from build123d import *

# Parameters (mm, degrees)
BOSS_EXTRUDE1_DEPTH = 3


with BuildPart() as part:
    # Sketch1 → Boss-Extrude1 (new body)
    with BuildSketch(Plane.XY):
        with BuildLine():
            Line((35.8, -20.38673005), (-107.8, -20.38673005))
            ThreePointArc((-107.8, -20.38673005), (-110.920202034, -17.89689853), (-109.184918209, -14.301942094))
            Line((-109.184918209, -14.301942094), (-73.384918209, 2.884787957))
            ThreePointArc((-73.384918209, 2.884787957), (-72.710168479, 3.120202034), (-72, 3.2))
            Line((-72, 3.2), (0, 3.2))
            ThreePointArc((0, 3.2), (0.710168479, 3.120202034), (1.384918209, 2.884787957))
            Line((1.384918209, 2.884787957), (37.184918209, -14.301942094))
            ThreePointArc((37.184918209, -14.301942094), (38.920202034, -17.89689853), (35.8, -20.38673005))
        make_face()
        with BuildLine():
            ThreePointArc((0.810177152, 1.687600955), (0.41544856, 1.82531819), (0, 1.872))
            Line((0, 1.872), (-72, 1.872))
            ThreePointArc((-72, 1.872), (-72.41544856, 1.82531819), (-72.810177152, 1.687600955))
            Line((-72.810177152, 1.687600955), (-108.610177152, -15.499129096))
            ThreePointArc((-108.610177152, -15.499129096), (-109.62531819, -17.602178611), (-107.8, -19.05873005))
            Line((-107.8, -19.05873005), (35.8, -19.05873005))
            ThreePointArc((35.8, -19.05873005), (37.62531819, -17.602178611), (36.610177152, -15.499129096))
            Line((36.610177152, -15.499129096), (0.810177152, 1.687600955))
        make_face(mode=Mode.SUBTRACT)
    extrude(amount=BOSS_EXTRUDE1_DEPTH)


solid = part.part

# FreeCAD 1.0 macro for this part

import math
import FreeCAD as App
import Part
import Sketcher

doc = App.newDocument("Part")
body = doc.addObject("PartDesign::Body", "Body")

sketch1 = body.newObject("Sketcher::SketchObject", "Sketch")
sketch1.AttachmentSupport = (doc.getObject("XY_Plane"), [""])
sketch1.MapMode = "FlatFace"
sketch1.addGeometry(Part.LineSegment(App.Vector(-107.8, -20.38673, 0), App.Vector(35.8, -20.38673, 0)), False)
sketch1.addGeometry(Part.ArcOfCircle(Part.Circle(App.Vector(35.8, -17.18673, 0), App.Vector(0, 0, 1), 3.2), math.radians(-90), math.radians(64.355443)), False)
sketch1.addGeometry(Part.LineSegment(App.Vector(37.184918, -14.301942, 0), App.Vector(1.384918, 2.884788, 0)), False)
sketch1.addGeometry(Part.ArcOfCircle(Part.Circle(App.Vector(0, 0, 0), App.Vector(0, 0, 1), 3.2), math.radians(64.355443), math.radians(90)), False)
sketch1.addGeometry(Part.LineSegment(App.Vector(0, 3.2, 0), App.Vector(-72, 3.2, 0)), False)
sketch1.addGeometry(Part.ArcOfCircle(Part.Circle(App.Vector(-72, 0, 0), App.Vector(0, 0, 1), 3.2), math.radians(90), math.radians(115.644557)), False)
sketch1.addGeometry(Part.LineSegment(App.Vector(-73.384918, 2.884788, 0), App.Vector(-109.184918, -14.301942, 0)), False)
sketch1.addGeometry(Part.ArcOfCircle(Part.Circle(App.Vector(-107.8, -17.18673, 0), App.Vector(0, 0, 1), 3.2), math.radians(115.644557), math.radians(270)), False)
sketch1.addGeometry(Part.LineSegment(App.Vector(0.810177, 1.687601, 0), App.Vector(36.610177, -15.499129, 0)), False)
sketch1.addGeometry(Part.ArcOfCircle(Part.Circle(App.Vector(35.8, -17.18673, 0), App.Vector(0, 0, 1), 1.872), math.radians(-90), math.radians(64.355443)), False)
sketch1.addGeometry(Part.LineSegment(App.Vector(35.8, -19.05873, 0), App.Vector(-107.8, -19.05873, 0)), False)
sketch1.addGeometry(Part.ArcOfCircle(Part.Circle(App.Vector(-107.8, -17.18673, 0), App.Vector(0, 0, 1), 1.872), math.radians(115.644557), math.radians(270)), False)
sketch1.addGeometry(Part.LineSegment(App.Vector(-108.610177, -15.499129, 0), App.Vector(-72.810177, 1.687601, 0)), False)
sketch1.addGeometry(Part.ArcOfCircle(Part.Circle(App.Vector(-72, 0, 0), App.Vector(0, 0, 1), 1.872), math.radians(90), math.radians(115.644557)), False)
sketch1.addGeometry(Part.LineSegment(App.Vector(-72, 1.872, 0), App.Vector(0, 1.872, 0)), False)
sketch1.addGeometry(Part.ArcOfCircle(Part.Circle(App.Vector(0, 0, 0), App.Vector(0, 0, 1), 1.872), math.radians(64.355443), math.radians(90)), False)
sketch1.addConstraint(Sketcher.Constraint("Tangent", 0, 2, 1, 1))
sketch1.addConstraint(Sketcher.Constraint("Tangent", 1, 2, 2, 1))
sketch1.addConstraint(Sketcher.Constraint("Tangent", 2, 2, 3, 1))
sketch1.addConstraint(Sketcher.Constraint("Tangent", 3, 2, 4, 1))
sketch1.addConstraint(Sketcher.Constraint("Tangent", 4, 2, 5, 1))
sketch1.addConstraint(Sketcher.Constraint("Tangent", 5, 2, 6, 1))
sketch1.addConstraint(Sketcher.Constraint("Tangent", 6, 2, 7, 1))
sketch1.addConstraint(Sketcher.Constraint("Tangent", 7, 2, 0, 1))
sketch1.addConstraint(Sketcher.Constraint("Tangent", 8, 2, 9, 2))
sketch1.addConstraint(Sketcher.Constraint("Tangent", 9, 1, 10, 1))
sketch1.addConstraint(Sketcher.Constraint("Tangent", 10, 2, 11, 2))
sketch1.addConstraint(Sketcher.Constraint("Tangent", 11, 1, 12, 1))
sketch1.addConstraint(Sketcher.Constraint("Tangent", 12, 2, 13, 2))
sketch1.addConstraint(Sketcher.Constraint("Tangent", 13, 1, 14, 1))
sketch1.addConstraint(Sketcher.Constraint("Tangent", 14, 2, 15, 2))
sketch1.addConstraint(Sketcher.Constraint("Tangent", 15, 1, 8, 1))
sketch1.addConstraint(Sketcher.Constraint("Horizontal", 0))
sketch1.addConstraint(Sketcher.Constraint("Horizontal", 4))
sketch1.addConstraint(Sketcher.Constraint("Horizontal", 10))
sketch1.addConstraint(Sketcher.Constraint("Horizontal", 14))
sketch1.addConstraint(Sketcher.Constraint("Coincident", 3, 3, -1, 1))
sketch1.addConstraint(Sketcher.Constraint("Coincident", 15, 3, -1, 1))
sketch1.addConstraint(Sketcher.Constraint("Coincident", 9, 3, 1, 3))
sketch1.addConstraint(Sketcher.Constraint("Coincident", 11, 3, 7, 3))
sketch1.addConstraint(Sketcher.Constraint("Coincident", 13, 3, 5, 3))
sketch1.addConstraint(Sketcher.Constraint("Equal", 1, 3))
sketch1.addConstraint(Sketcher.Constraint("Equal", 3, 5))
sketch1.addConstraint(Sketcher.Constraint("Equal", 5, 7))
sketch1.addConstraint(Sketcher.Constraint("Equal", 11, 13))
sketch1.addConstraint(Sketcher.Constraint("Horizontal", 2, 2, 5, 2))
sketch1.addConstraint(Sketcher.Constraint("Radius", 1, 3.2))
sketch1.addConstraint(Sketcher.Constraint("DistanceX", 4, 2, 4, 1, 72.0))
sketch1.addConstraint(Sketcher.Constraint("DistanceX", 0, 1, 0, 2, 143.6))
sketch1.addConstraint(Sketcher.Constraint("Radius", 9, 1.872))
sketch1.addConstraint(Sketcher.Constraint("DistanceY", -1, 1, 12, 2, 1.687601))
pad1 = body.newObject("PartDesign::Pad", "Pad")
pad1.Profile = sketch1
pad1.Length = 3

doc.recompute()
